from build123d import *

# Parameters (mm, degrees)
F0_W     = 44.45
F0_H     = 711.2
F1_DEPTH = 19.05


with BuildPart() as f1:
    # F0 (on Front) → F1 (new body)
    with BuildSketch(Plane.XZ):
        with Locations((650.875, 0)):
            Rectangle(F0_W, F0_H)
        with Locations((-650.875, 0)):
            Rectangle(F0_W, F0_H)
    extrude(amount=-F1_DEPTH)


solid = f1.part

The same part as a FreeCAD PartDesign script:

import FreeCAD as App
import Part
import Sketcher
Q = App.Units.Quantity

doc = App.newDocument("Part")
body = doc.addObject("PartDesign::Body", "Body")
body.AllowCompound = True

# Sketch on XZ plane
sketch1 = body.newObject("Sketcher::SketchObject", "Sketch")
sketch1.AttachmentSupport = (doc.getObject("XZ_Plane"), [""])
sketch1.MapMode = "FlatFace"
sketch1.addGeometry(Part.LineSegment(App.Vector(629, 356, 0), App.Vector(629, -356, 0)), False)
sketch1.addGeometry(Part.LineSegment(App.Vector(629, -356, 0), App.Vector(673, -356, 0)), False)
sketch1.addGeometry(Part.LineSegment(App.Vector(673, -356, 0), App.Vector(673, 356, 0)), False)
sketch1.addGeometry(Part.LineSegment(App.Vector(673, 356, 0), App.Vector(629, 356, 0)), False)
sketch1.addGeometry(Part.LineSegment(App.Vector(-673, 356, 0), App.Vector(-673, -356, 0)), False)
sketch1.addGeometry(Part.LineSegment(App.Vector(-673, -356, 0), App.Vector(-629, -356, 0)), False)
sketch1.addGeometry(Part.LineSegment(App.Vector(-629, -356, 0), App.Vector(-629, 356, 0)), False)
sketch1.addGeometry(Part.LineSegment(App.Vector(-629, 356, 0), App.Vector(-673, 356, 0)), False)
sketch1.addConstraint(Sketcher.Constraint("Coincident", 0, 2, 1, 1))
sketch1.addConstraint(Sketcher.Constraint("Coincident", 1, 2, 2, 1))
sketch1.addConstraint(Sketcher.Constraint("Coincident", 2, 2, 3, 1))
sketch1.addConstraint(Sketcher.Constraint("Coincident", 3, 2, 0, 1))
sketch1.addConstraint(Sketcher.Constraint("Coincident", 4, 2, 5, 1))
sketch1.addConstraint(Sketcher.Constraint("Coincident", 5, 2, 6, 1))
sketch1.addConstraint(Sketcher.Constraint("Coincident", 6, 2, 7, 1))
sketch1.addConstraint(Sketcher.Constraint("Coincident", 7, 2, 4, 1))
sketch1.addConstraint(Sketcher.Constraint("Vertical", 0))
sketch1.addConstraint(Sketcher.Constraint("Horizontal", 1))
sketch1.addConstraint(Sketcher.Constraint("Vertical", 2))
sketch1.addConstraint(Sketcher.Constraint("Horizontal", 3))
sketch1.addConstraint(Sketcher.Constraint("Vertical", 4))
sketch1.addConstraint(Sketcher.Constraint("Horizontal", 5))
sketch1.addConstraint(Sketcher.Constraint("Vertical", 6))
sketch1.addConstraint(Sketcher.Constraint("Horizontal", 7))
sketch1.addConstraint(Sketcher.Constraint("Symmetric", 2, 2, 4, 2, -1, 1))
sketch1.addConstraint(Sketcher.Constraint("Symmetric", 0, 2, 6, 2, -1, 1))
sketch1.addConstraint(Sketcher.Constraint("Horizontal", 1, 2, 4, 2))
sketch1.addConstraint(Sketcher.Constraint("DistanceY", 0, 2, 0, 1, Q("28 in")))
sketch1.addConstraint(Sketcher.Constraint("DistanceX", 4, 2, 1, 2, Q("53 in")))
sketch1.addConstraint(Sketcher.Constraint("DistanceX", 1, 1, 1, 2, Q("1.75 in")))
pad1 = body.newObject("PartDesign::Pad", "Pad")
pad1.Profile = sketch1
pad1.Length = Q("0.75 in")
pad1.Reversed = True

doc.recompute()
